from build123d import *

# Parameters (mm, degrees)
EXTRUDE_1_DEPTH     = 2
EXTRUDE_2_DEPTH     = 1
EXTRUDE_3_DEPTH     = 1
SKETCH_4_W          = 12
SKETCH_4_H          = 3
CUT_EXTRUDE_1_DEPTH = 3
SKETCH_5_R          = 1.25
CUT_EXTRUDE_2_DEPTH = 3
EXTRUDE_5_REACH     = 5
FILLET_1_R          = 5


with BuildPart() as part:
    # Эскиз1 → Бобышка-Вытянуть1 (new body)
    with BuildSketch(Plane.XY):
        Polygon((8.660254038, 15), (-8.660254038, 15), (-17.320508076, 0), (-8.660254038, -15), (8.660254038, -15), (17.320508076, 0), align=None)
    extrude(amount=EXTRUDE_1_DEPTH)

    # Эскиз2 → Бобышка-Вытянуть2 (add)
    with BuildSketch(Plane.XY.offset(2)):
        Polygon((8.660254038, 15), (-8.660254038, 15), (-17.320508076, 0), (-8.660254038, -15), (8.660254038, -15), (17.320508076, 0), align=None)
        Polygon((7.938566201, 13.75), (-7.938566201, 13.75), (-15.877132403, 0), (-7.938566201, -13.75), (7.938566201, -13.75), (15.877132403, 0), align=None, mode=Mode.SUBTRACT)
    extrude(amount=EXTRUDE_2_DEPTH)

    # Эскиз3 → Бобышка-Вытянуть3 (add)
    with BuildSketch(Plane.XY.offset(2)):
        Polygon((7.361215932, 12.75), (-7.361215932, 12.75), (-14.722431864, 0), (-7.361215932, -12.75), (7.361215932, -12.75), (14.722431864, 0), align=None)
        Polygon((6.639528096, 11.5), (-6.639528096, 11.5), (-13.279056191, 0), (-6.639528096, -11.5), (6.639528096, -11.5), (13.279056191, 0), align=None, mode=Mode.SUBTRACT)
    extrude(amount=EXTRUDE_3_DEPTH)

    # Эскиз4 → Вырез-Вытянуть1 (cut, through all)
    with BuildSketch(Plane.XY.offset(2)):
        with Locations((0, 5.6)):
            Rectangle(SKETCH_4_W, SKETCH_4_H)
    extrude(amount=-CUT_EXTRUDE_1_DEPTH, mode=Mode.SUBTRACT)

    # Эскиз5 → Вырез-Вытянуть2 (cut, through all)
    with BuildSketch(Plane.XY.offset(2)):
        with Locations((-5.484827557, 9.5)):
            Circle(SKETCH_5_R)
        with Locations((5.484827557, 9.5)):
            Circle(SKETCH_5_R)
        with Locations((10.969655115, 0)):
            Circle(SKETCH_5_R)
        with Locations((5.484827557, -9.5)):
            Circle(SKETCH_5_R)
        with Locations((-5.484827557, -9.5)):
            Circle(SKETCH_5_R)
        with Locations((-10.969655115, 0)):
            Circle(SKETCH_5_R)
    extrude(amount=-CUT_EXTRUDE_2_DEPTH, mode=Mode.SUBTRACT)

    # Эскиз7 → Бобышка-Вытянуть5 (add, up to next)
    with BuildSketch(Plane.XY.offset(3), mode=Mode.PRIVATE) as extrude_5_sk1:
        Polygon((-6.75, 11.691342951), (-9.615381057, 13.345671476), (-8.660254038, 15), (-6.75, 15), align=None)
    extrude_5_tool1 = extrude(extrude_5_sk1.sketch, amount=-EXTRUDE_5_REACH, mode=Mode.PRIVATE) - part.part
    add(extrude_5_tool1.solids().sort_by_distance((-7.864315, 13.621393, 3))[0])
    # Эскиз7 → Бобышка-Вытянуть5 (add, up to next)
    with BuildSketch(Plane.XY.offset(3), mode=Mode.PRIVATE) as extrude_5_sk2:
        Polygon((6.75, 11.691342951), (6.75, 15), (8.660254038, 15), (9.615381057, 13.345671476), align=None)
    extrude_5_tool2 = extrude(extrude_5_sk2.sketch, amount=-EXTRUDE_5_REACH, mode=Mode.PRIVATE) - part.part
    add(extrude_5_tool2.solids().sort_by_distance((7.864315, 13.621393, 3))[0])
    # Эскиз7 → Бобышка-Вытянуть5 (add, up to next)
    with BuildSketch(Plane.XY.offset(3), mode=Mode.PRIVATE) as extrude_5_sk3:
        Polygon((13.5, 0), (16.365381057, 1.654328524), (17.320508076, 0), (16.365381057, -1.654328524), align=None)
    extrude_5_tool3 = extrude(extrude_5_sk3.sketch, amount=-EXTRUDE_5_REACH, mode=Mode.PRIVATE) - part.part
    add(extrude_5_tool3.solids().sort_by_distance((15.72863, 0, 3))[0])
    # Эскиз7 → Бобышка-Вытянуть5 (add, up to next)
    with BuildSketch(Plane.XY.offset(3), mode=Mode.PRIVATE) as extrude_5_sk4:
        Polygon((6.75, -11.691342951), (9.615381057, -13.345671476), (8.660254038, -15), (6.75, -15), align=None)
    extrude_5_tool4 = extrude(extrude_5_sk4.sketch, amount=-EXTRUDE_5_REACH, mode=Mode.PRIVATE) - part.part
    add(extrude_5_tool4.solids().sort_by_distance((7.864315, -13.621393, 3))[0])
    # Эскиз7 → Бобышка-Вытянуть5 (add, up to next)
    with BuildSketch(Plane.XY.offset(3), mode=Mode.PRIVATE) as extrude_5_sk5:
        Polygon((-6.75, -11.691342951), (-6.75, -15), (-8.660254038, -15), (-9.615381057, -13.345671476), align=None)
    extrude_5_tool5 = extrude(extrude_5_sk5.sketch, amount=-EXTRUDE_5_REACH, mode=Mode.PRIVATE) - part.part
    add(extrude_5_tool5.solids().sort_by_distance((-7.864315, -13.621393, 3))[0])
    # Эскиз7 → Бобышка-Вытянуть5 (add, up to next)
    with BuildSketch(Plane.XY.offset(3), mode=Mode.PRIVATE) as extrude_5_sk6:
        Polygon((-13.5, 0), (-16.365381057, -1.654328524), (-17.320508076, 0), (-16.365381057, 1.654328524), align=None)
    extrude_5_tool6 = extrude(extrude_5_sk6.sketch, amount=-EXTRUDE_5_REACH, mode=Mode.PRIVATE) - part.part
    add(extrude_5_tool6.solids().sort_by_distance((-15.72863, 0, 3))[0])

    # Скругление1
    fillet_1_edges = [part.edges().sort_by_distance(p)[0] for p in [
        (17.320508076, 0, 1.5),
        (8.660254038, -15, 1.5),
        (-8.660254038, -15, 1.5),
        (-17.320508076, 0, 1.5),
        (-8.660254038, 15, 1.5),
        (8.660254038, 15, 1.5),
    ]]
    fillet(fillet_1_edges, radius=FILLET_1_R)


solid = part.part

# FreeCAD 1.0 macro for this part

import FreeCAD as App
import Part
import Sketcher

V = App.Vector
Q = App.Units.Quantity


def edges_at(feature, points):
    """Names of the edges that pass closest to the given points."""
    edges = feature.Shape.Edges
    near = lambda p: min(range(len(edges)), key=lambda i: edges[i].distToShape(Part.Vertex(*p))[0])
    return sorted({f"Edge{near(p) + 1}" for p in points})


def add_polygon(sketch, points):
    """Adds a closed chain of lines whose ends are joined by coincident constraints."""
    first, n = sketch.GeometryCount, len(points)
    for a, b in zip(points, points[1:] + points[:1]):
        sketch.addGeometry(Part.LineSegment(App.Vector(*a, 0), App.Vector(*b, 0)), False)
    for i in range(n):
        sketch.addConstraint(Sketcher.Constraint("Coincident", first + i, 2, first + (i + 1) % n, 1))

doc = App.newDocument("Part")
params = doc.addObject("Spreadsheet::Sheet", "Params")
for row, (alias, value) in enumerate([
    ("pad1_length", "2 mm"),
    ("pad2_length", "1 mm"),
    ("pad3_length", "1 mm"),
    ("sketch4_width", "12 mm"),
    ("sketch4_height", "3 mm"),
    ("sketch5_diameter", "2.5 mm"),
    ("fillet_radius", "5 mm"),
], start=1):
    params.set(f"A{row}", alias)
    params.set(f"B{row}", "=" + value)
    params.setAlias(f"B{row}", alias)

body = doc.addObject("PartDesign::Body", "Body")

sketch1 = doc.addObject("Sketcher::SketchObject", "Sketch")
body.addObject(sketch1)
sketch1.AttachmentSupport = (doc.XY_Plane, [""])
sketch1.MapMode = "FlatFace"
add_polygon(sketch1, [(9, 15), (-9, 15), (-17, 0), (-9, -15), (9, -15), (17, 0)])
sketch1.addConstraint([
    Sketcher.Constraint("Horizontal", 0),
    Sketcher.Constraint("Horizontal", 3),
    Sketcher.Constraint("Symmetric", 0, 2, 3, 2, -1, 1),
    Sketcher.Constraint("Symmetric", 1, 2, 4, 2, -1, 1),
    Sketcher.Constraint("PointOnObject", 1, 2, -1),
    Sketcher.Constraint("Parallel", 2, 5),
    Sketcher.Constraint("Vertical", 0, 2, 2, 2),
    Sketcher.Constraint("Angle", 1, Q("-120 deg")),
    Sketcher.Constraint("DistanceY", -1, 1, 0, 2, Q("15 mm")),
    Sketcher.Constraint("DistanceX", 0, 2, 0, 1, Q("17.320508 mm")),
])
pad1 = doc.addObject("PartDesign::Pad", "Pad")
body.addObject(pad1)
pad1.Profile = sketch1
pad1.setExpression("Length", "Params.pad1_length")

sketch2 = doc.addObject("Sketcher::SketchObject", "Sketch001")
body.addObject(sketch2)
sketch2.AttachmentSupport = (doc.XY_Plane, [""])
sketch2.MapMode = "FlatFace"
sketch2.AttachmentOffset = App.Placement(V(0, 0, 2), App.Rotation())
add_polygon(sketch2, [(9, 15), (-9, 15), (-17, 0), (-9, -15), (9, -15), (17, 0)])
add_polygon(sketch2, [(-8, 14), (8, 14), (16, 0), (8, -14), (-8, -14), (-16, 0)])
sketch2.addConstraint([
    Sketcher.Constraint("Horizontal", 0),
    Sketcher.Constraint("Horizontal", 3),
    Sketcher.Constraint("Horizontal", 6),
    Sketcher.Constraint("Horizontal", 9),
    Sketcher.Constraint("Symmetric", 0, 2, 3, 2, -1, 1),
    Sketcher.Constraint("Symmetric", 1, 2, 4, 2, -1, 1),
    Sketcher.Constraint("Symmetric", 6, 2, 9, 2, -1, 1),
    Sketcher.Constraint("Symmetric", 7, 2, 10, 2, -1, 1),
    Sketcher.Constraint("PointOnObject", 1, 2, -1),
    Sketcher.Constraint("PointOnObject", 7, 2, -1),
    Sketcher.Constraint("Parallel", 2, 5),
    Sketcher.Constraint("Parallel", 5, 7),
    Sketcher.Constraint("Parallel", 4, 8),
    Sketcher.Constraint("Parallel", 8, 11),
    Sketcher.Constraint("Vertical", 0, 2, 2, 2),
    Sketcher.Constraint("Angle", 1, Q("-120 deg")),
    Sketcher.Constraint("DistanceY", -1, 1, 0, 2, Q("15 mm")),
    Sketcher.Constraint("DistanceY", 8, 2, 6, 2, Q("27.5 mm")),
    Sketcher.Constraint("DistanceX", 0, 2, 0, 1, Q("17.320508 mm")),
    Sketcher.Constraint("DistanceX", 9, 2, 7, 2, Q("23.815699 mm")),
])
pad2 = doc.addObject("PartDesign::Pad", "Pad001")
body.addObject(pad2)
pad2.Profile = sketch2
pad2.setExpression("Length", "Params.pad2_length")

sketch3 = doc.addObject("Sketcher::SketchObject", "Sketch002")
body.addObject(sketch3)
sketch3.AttachmentSupport = (doc.XY_Plane, [""])
sketch3.MapMode = "FlatFace"
sketch3.AttachmentOffset = App.Placement(V(0, 0, 2), App.Rotation())
add_polygon(sketch3, [(7, 13), (-7, 13), (-15, 0), (-7, -13), (7, -13), (15, 0)])
add_polygon(sketch3, [(-7, 12), (7, 12), (13, 0), (7, -12), (-7, -12), (-13, 0)])
sketch3.addConstraint([
    Sketcher.Constraint("Horizontal", 0),
    Sketcher.Constraint("Horizontal", 3),
    Sketcher.Constraint("Horizontal", 6),
    Sketcher.Constraint("Horizontal", 9),
    Sketcher.Constraint("Symmetric", 0, 2, 3, 2, -1, 1),
    Sketcher.Constraint("Symmetric", 1, 2, 4, 2, -1, 1),
    Sketcher.Constraint("Symmetric", 6, 2, 9, 2, -1, 1),
    Sketcher.Constraint("Symmetric", 7, 2, 10, 2, -1, 1),
    Sketcher.Constraint("PointOnObject", 1, 2, -1),
    Sketcher.Constraint("PointOnObject", 7, 2, -1),
    Sketcher.Constraint("Parallel", 2, 5),
    Sketcher.Constraint("Parallel", 5, 7),
    Sketcher.Constraint("Parallel", 4, 8),
    Sketcher.Constraint("Parallel", 8, 11),
    Sketcher.Constraint("Vertical", 0, 2, 2, 2),
    Sketcher.Constraint("Angle", 1, Q("-120 deg")),
    Sketcher.Constraint("DistanceY", 8, 2, 6, 2, Q("23 mm")),
    Sketcher.Constraint("DistanceY", 2, 2, 0, 2, Q("25.5 mm")),
    Sketcher.Constraint("DistanceX", 0, 2, 0, 1, Q("14.722432 mm")),
    Sketcher.Constraint("DistanceX", 6, 1, 6, 2, Q("13.279056 mm")),
])
pad3 = doc.addObject("PartDesign::Pad", "Pad002")
body.addObject(pad3)
pad3.Profile = sketch3
pad3.setExpression("Length", "Params.pad3_length")

sketch4 = doc.addObject("Sketcher::SketchObject", "Sketch003")
body.addObject(sketch4)
sketch4.AttachmentSupport = (doc.XY_Plane, [""])
sketch4.MapMode = "FlatFace"
sketch4.AttachmentOffset = App.Placement(V(0, 0, 2), App.Rotation())
add_polygon(sketch4, [(-6, 7.1), (-6, 4.1), (6, 4.1), (6, 7.1)])
sketch4.addConstraint([
    Sketcher.Constraint("Vertical", 0),
    Sketcher.Constraint("Horizontal", 1),
    Sketcher.Constraint("Vertical", 2),
    Sketcher.Constraint("Horizontal", 3),
    Sketcher.Constraint("DistanceX", 1, 1, 1, 2, Q("12 mm")),
    Sketcher.Constraint("DistanceY", 0, 2, 0, 1, Q("3 mm")),
    Sketcher.Constraint("DistanceX", 0, 2, -1, 1, Q("6 mm")),
    Sketcher.Constraint("DistanceY", -1, 1, 0, 2, Q("4.1 mm")),
])
sketch4.setExpression("Constraints[8]", "Params.sketch4_width")
sketch4.setExpression("Constraints[9]", "Params.sketch4_height")
pocket1 = doc.addObject("PartDesign::Pocket", "Pocket")
body.addObject(pocket1)
pocket1.Profile = sketch4
pocket1.Type = "ThroughAll"

sketch5 = doc.addObject("Sketcher::SketchObject", "Sketch004")
body.addObject(sketch5)
sketch5.AttachmentSupport = (doc.XY_Plane, [""])
sketch5.MapMode = "FlatFace"
sketch5.AttachmentOffset = App.Placement(V(0, 0, 2), App.Rotation())
sketch5.addGeometry([
    Part.Circle(V(-5.5, 9.5, 0), V(0, 0, 1), 1.2),
    Part.Circle(V(5.5, 9.5, 0), V(0, 0, 1), 1.2),
    Part.Circle(V(11, 0, 0), V(0, 0, 1), 1.2),
    Part.Circle(V(5.5, -9.5, 0), V(0, 0, 1), 1.2),
    Part.Circle(V(-5.5, -9.5, 0), V(0, 0, 1), 1.2),
    Part.Circle(V(-11, 0, 0), V(0, 0, 1), 1.2),
], False)
sketch5.addConstraint([
    Sketcher.Constraint("Equal", 0, 1),
    Sketcher.Constraint("Equal", 1, 2),
    Sketcher.Constraint("Equal", 2, 3),
    Sketcher.Constraint("Equal", 3, 4),
    Sketcher.Constraint("Equal", 4, 5),
    Sketcher.Constraint("Symmetric", 0, 3, 3, 3, -1, 1),
    Sketcher.Constraint("Symmetric", 1, 3, 4, 3, -1, 1),
    Sketcher.Constraint("Symmetric", 2, 3, 5, 3, -1, 1),
    Sketcher.Constraint("Symmetric", 0, 3, 1, 3, -2),
    Sketcher.Constraint("PointOnObject", 2, 3, -1),
    Sketcher.Constraint("Diameter", 0, Q("2.5 mm")),
    Sketcher.Constraint("DistanceY", 3, 3, 1, 3, Q("19 mm")),
    Sketcher.Constraint("DistanceX", 5, 3, 2, 3, Q("21.93931 mm")),
    Sketcher.Constraint("DistanceX", 0, 3, -1, 1, Q("5.484828 mm")),
])
sketch5.setExpression("Constraints[10]", "Params.sketch5_diameter")
pocket2 = doc.addObject("PartDesign::Pocket", "Pocket001")
body.addObject(pocket2)
pocket2.Profile = sketch5
pocket2.Type = "ThroughAll"

sketch6 = doc.addObject("Sketcher::SketchObject", "Sketch005")
body.addObject(sketch6)
sketch6.AttachmentSupport = (doc.XY_Plane, [""])
sketch6.MapMode = "FlatFace"
sketch6.AttachmentOffset = App.Placement(V(0, 0, 3), App.Rotation())
add_polygon(sketch6, [(-9.6, 13.3), (-6.8, 11.7), (-6.8, 15), (-8.7, 15)])
sketch6.addConstraint([
    Sketcher.Constraint("Vertical", 1),
    Sketcher.Constraint("Horizontal", 2),
    Sketcher.Constraint("Perpendicular", 0, 3),
    Sketcher.Constraint("Angle", 0, Q("-30 deg")),
    Sketcher.Constraint("DistanceY", -1, 1, 1, 2, Q("15 mm")),
    Sketcher.Constraint("DistanceX", 0, 2, -1, 1, Q("6.75 mm")),
    Sketcher.Constraint("DistanceX", 2, 2, 2, 1, Q("1.910254 mm")),
    Sketcher.Constraint("DistanceY", 1, 1, 1, 2, Q("3.308657 mm")),
])
pad4 = doc.addObject("PartDesign::Pad", "Pad003")
body.addObject(pad4)
pad4.Profile = sketch6
pad4.Type = "UpToFirst"
pad4.Reversed = True

sketch7 = doc.addObject("Sketcher::SketchObject", "Sketch006")
body.addObject(sketch7)
sketch7.AttachmentSupport = (doc.XY_Plane, [""])
sketch7.MapMode = "FlatFace"
sketch7.AttachmentOffset = App.Placement(V(0, 0, 3), App.Rotation())
add_polygon(sketch7, [(6.8, 15), (6.8, 11.7), (9.6, 13.3), (8.7, 15)])
sketch7.addConstraint([
    Sketcher.Constraint("Vertical", 0),
    Sketcher.Constraint("Horizontal", 3),
    Sketcher.Constraint("Perpendicular", 1, 2),
    Sketcher.Constraint("Angle", 1, Q("30 deg")),
    Sketcher.Constraint("DistanceY", -1, 1, 2, 2, Q("15 mm")),
    Sketcher.Constraint("DistanceX", -1, 1, 0, 2, Q("6.75 mm")),
    Sketcher.Constraint("DistanceX", 3, 2, 3, 1, Q("1.910254 mm")),
    Sketcher.Constraint("DistanceY", 0, 2, 0, 1, Q("3.308657 mm")),
])
pad5 = doc.addObject("PartDesign::Pad", "Pad004")
body.addObject(pad5)
pad5.Profile = sketch7
pad5.Type = "UpToFirst"
pad5.Reversed = True

sketch8 = doc.addObject("Sketcher::SketchObject", "Sketch007")
body.addObject(sketch8)
sketch8.AttachmentSupport = (doc.XY_Plane, [""])
sketch8.MapMode = "FlatFace"
sketch8.AttachmentOffset = App.Placement(V(0, 0, 3), App.Rotation())
add_polygon(sketch8, [(16.4, 1.7), (13.5, 0), (16.4, -1.7), (17.3, 0)])
sketch8.addConstraint([
    Sketcher.Constraint("Symmetric", 1, 2, 3, 2, -1),
    Sketcher.Constraint("PointOnObject", 0, 2, -1),
    Sketcher.Constraint("PointOnObject", 2, 2, -1),
    Sketcher.Constraint("Perpendicular", 1, 2),
    Sketcher.Constraint("Angle", 0, Q("-150 deg")),
    Sketcher.Constraint("DistanceX", -1, 1, 0, 2, Q("13.5 mm")),
    Sketcher.Constraint("DistanceX", -1, 1, 1, 2, Q("16.365381 mm")),
])
pad6 = doc.addObject("PartDesign::Pad", "Pad005")
body.addObject(pad6)
pad6.Profile = sketch8
pad6.Type = "UpToFirst"
pad6.Reversed = True

sketch9 = doc.addObject("Sketcher::SketchObject", "Sketch008")
body.addObject(sketch9)
sketch9.AttachmentSupport = (doc.XY_Plane, [""])
sketch9.MapMode = "FlatFace"
sketch9.AttachmentOffset = App.Placement(V(0, 0, 3), App.Rotation())
add_polygon(sketch9, [(9.6, -13.3), (6.8, -11.7), (6.8, -15), (8.7, -15)])
sketch9.addConstraint([
    Sketcher.Constraint("Vertical", 1),
    Sketcher.Constraint("Horizontal", 2),
    Sketcher.Constraint("Perpendicular", 0, 3),
    Sketcher.Constraint("Angle", 0, Q("150 deg")),
    Sketcher.Constraint("DistanceY", 1, 2, -1, 1, Q("15 mm")),
    Sketcher.Constraint("DistanceX", -1, 1, 0, 2, Q("6.75 mm")),
    Sketcher.Constraint("DistanceX", 2, 1, 2, 2, Q("1.910254 mm")),
    Sketcher.Constraint("DistanceY", 1, 2, 1, 1, Q("3.308657 mm")),
])
pad7 = doc.addObject("PartDesign::Pad", "Pad006")
body.addObject(pad7)
pad7.Profile = sketch9
pad7.Type = "UpToFirst"
pad7.Reversed = True

sketch10 = doc.addObject("Sketcher::SketchObject", "Sketch009")
body.addObject(sketch10)
sketch10.AttachmentSupport = (doc.XY_Plane, [""])
sketch10.MapMode = "FlatFace"
sketch10.AttachmentOffset = App.Placement(V(0, 0, 3), App.Rotation())
add_polygon(sketch10, [(-6.8, -15), (-6.8, -11.7), (-9.6, -13.3), (-8.7, -15)])
sketch10.addConstraint([
    Sketcher.Constraint("Vertical", 0),
    Sketcher.Constraint("Horizontal", 3),
    Sketcher.Constraint("Perpendicular", 1, 2),
    Sketcher.Constraint("Angle", 1, Q("-150 deg")),
    Sketcher.Constraint("DistanceY", 2, 2, -1, 1, Q("15 mm")),
    Sketcher.Constraint("DistanceX", 0, 2, -1, 1, Q("6.75 mm")),
    Sketcher.Constraint("DistanceX", 3, 1, 3, 2, Q("1.910254 mm")),
    Sketcher.Constraint("DistanceY", 0, 1, 0, 2, Q("3.308657 mm")),
])
pad8 = doc.addObject("PartDesign::Pad", "Pad007")
body.addObject(pad8)
pad8.Profile = sketch10
pad8.Type = "UpToFirst"
pad8.Reversed = True

sketch11 = doc.addObject("Sketcher::SketchObject", "Sketch010")
body.addObject(sketch11)
sketch11.AttachmentSupport = (doc.XY_Plane, [""])
sketch11.MapMode = "FlatFace"
sketch11.AttachmentOffset = App.Placement(V(0, 0, 3), App.Rotation())
add_polygon(sketch11, [(-16.4, -1.7), (-13.5, 0), (-16.4, 1.7), (-17.3, 0)])
sketch11.addConstraint([
    Sketcher.Constraint("Symmetric", 1, 2, 3, 2, -1),
    Sketcher.Constraint("PointOnObject", 0, 2, -1),
    Sketcher.Constraint("PointOnObject", 2, 2, -1),
    Sketcher.Constraint("Perpendicular", 1, 2),
    Sketcher.Constraint("Angle", 0, Q("30 deg")),
    Sketcher.Constraint("DistanceX", 0, 2, -1, 1, Q("13.5 mm")),
    Sketcher.Constraint("DistanceX", 1, 2, -1, 1, Q("16.365381 mm")),
])
pad9 = doc.addObject("PartDesign::Pad", "Pad008")
body.addObject(pad9)
pad9.Profile = sketch11
pad9.Type = "UpToFirst"
pad9.Reversed = True
doc.recompute()

fillet = doc.addObject("PartDesign::Fillet", "Fillet")
body.addObject(fillet)
fillet.Base = (pad9, edges_at(pad9, [
    (17.321, 0, 1.5),
    (8.66, -15, 1.5),
    (-8.66, -15, 1.5),
    (-17.321, 0, 1.5),
    (-8.66, 15, 1.5),
    (8.66, 15, 1.5),
]))
fillet.setExpression("Radius", "Params.fillet_radius")

doc.recompute()
